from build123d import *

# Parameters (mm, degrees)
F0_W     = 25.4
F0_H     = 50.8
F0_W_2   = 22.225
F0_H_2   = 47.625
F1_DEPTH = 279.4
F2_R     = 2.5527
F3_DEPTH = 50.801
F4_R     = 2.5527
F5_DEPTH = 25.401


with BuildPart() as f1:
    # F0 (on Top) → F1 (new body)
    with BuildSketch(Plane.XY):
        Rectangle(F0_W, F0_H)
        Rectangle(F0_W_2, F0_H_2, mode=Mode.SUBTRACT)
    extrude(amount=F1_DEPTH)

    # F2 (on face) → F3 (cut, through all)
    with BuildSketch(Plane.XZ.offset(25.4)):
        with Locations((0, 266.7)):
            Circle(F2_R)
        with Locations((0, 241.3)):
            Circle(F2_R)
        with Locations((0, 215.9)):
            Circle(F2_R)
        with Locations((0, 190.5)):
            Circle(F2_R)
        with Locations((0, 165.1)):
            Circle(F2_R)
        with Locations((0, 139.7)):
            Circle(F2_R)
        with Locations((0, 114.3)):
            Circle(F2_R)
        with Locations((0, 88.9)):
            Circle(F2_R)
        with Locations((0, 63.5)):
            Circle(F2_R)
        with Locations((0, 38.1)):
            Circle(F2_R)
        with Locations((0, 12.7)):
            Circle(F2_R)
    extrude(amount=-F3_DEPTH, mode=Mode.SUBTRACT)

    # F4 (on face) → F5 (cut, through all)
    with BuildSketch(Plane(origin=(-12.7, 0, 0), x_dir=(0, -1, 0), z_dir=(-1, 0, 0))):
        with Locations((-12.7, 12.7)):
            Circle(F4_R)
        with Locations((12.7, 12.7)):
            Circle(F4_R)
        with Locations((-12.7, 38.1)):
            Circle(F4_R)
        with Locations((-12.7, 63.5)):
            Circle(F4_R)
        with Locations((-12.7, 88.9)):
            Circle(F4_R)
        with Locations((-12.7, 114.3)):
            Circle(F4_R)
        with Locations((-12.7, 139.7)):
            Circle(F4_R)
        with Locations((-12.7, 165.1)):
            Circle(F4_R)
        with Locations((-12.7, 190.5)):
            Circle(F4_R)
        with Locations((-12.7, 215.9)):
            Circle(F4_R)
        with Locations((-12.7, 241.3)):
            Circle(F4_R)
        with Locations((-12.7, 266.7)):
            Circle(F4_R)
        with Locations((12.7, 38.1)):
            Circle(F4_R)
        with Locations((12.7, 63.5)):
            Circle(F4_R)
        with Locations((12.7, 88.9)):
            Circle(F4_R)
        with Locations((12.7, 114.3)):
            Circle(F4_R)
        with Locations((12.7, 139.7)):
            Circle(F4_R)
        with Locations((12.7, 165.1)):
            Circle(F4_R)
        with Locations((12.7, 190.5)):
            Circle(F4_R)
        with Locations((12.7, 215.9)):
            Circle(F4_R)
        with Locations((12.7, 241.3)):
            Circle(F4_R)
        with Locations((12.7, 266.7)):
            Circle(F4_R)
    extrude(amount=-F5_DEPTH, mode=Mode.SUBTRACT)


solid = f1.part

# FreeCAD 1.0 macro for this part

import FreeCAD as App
import Part
import Sketcher
from FreeCAD import Vector
Q = App.Units.Quantity

doc = App.newDocument("Part")
body = doc.addObject("PartDesign::Body", "Body")

sketch1 = doc.addObject("Sketcher::SketchObject", "Sketch")
body.addObject(sketch1)
sketch1.AttachmentSupport = (doc.XY_Plane, [""])
sketch1.MapMode = "FlatFace"
sketch1.addGeometry([
    Part.LineSegment(Vector(-13, 25, 0), Vector(-13, -25, 0)),
    Part.LineSegment(Vector(-13, -25, 0), Vector(13, -25, 0)),
    Part.LineSegment(Vector(13, -25, 0), Vector(13, 25, 0)),
    Part.LineSegment(Vector(13, 25, 0), Vector(-13, 25, 0)),
    Part.LineSegment(Vector(11, -24, 0), Vector(-11, -24, 0)),
    Part.LineSegment(Vector(-11, -24, 0), Vector(-11, 24, 0)),
    Part.LineSegment(Vector(-11, 24, 0), Vector(11, 24, 0)),
    Part.LineSegment(Vector(11, 24, 0), Vector(11, -24, 0)),
], False)
sketch1.addConstraint([
    Sketcher.Constraint("Coincident", 0, 2, 1, 1),
    Sketcher.Constraint("Coincident", 1, 2, 2, 1),
    Sketcher.Constraint("Coincident", 2, 2, 3, 1),
    Sketcher.Constraint("Coincident", 3, 2, 0, 1),
    Sketcher.Constraint("Coincident", 4, 2, 5, 1),
    Sketcher.Constraint("Coincident", 5, 2, 6, 1),
    Sketcher.Constraint("Coincident", 6, 2, 7, 1),
    Sketcher.Constraint("Coincident", 7, 2, 4, 1),
    Sketcher.Constraint("Vertical", 0),
    Sketcher.Constraint("Horizontal", 1),
    Sketcher.Constraint("Vertical", 2),
    Sketcher.Constraint("Horizontal", 3),
    Sketcher.Constraint("Horizontal", 4),
    Sketcher.Constraint("Vertical", 5),
    Sketcher.Constraint("Horizontal", 6),
    Sketcher.Constraint("Vertical", 7),
    Sketcher.Constraint("Symmetric", 0, 2, 2, 2, -1, 1),
    Sketcher.Constraint("Symmetric", 4, 2, 6, 2, -1, 1),
    Sketcher.Constraint("DistanceX", 1, 1, 1, 2, Q("1 in")),
    Sketcher.Constraint("DistanceY", 0, 2, 0, 1, Q("2 in")),
    Sketcher.Constraint("DistanceX", 4, 2, 4, 1, Q("0.875 in")),
    Sketcher.Constraint("DistanceY", 5, 1, 5, 2, Q("1.875 in")),
])
pad1 = doc.addObject("PartDesign::Pad", "Pad")
body.addObject(pad1)
pad1.Profile = sketch1
pad1.Length = Q("11 in")

sketch2 = doc.addObject("Sketcher::SketchObject", "Sketch001")
body.addObject(sketch2)
sketch2.AttachmentSupport = (doc.XZ_Plane, [""])
sketch2.MapMode = "FlatFace"
sketch2.AttachmentOffset = App.Placement(Vector(0, 0, 1 * 25.4), App.Rotation())
sketch2.addGeometry([
    Part.Circle(Vector(0, 266.7, 0), Vector(0, 0, 1), 2.6),
    Part.Circle(Vector(0, 241.3, 0), Vector(0, 0, 1), 2.6),
    Part.Circle(Vector(0, 215.9, 0), Vector(0, 0, 1), 2.6),
    Part.Circle(Vector(0, 190.5, 0), Vector(0, 0, 1), 2.6),
    Part.Circle(Vector(0, 165.1, 0), Vector(0, 0, 1), 2.6),
    Part.Circle(Vector(0, 139.7, 0), Vector(0, 0, 1), 2.6),
    Part.Circle(Vector(0, 114.3, 0), Vector(0, 0, 1), 2.6),
    Part.Circle(Vector(0, 88.9, 0), Vector(0, 0, 1), 2.6),
    Part.Circle(Vector(0, 63.5, 0), Vector(0, 0, 1), 2.6),
    Part.Circle(Vector(0, 38.1, 0), Vector(0, 0, 1), 2.6),
    Part.Circle(Vector(0, 12.7, 0), Vector(0, 0, 1), 2.6),
], False)
sketch2.addConstraint([
    Sketcher.Constraint("Equal", 0, 1),
    Sketcher.Constraint("Equal", 1, 2),
    Sketcher.Constraint("Equal", 2, 3),
    Sketcher.Constraint("Equal", 3, 4),
    Sketcher.Constraint("Equal", 4, 5),
    Sketcher.Constraint("Equal", 5, 6),
    Sketcher.Constraint("Equal", 6, 7),
    Sketcher.Constraint("Equal", 7, 8),
    Sketcher.Constraint("Equal", 8, 9),
    Sketcher.Constraint("Equal", 9, 10),
    Sketcher.Constraint("PointOnObject", 0, 3, -2),
    Sketcher.Constraint("PointOnObject", 1, 3, -2),
    Sketcher.Constraint("PointOnObject", 2, 3, -2),
    Sketcher.Constraint("PointOnObject", 3, 3, -2),
    Sketcher.Constraint("PointOnObject", 4, 3, -2),
    Sketcher.Constraint("PointOnObject", 5, 3, -2),
    Sketcher.Constraint("PointOnObject", 6, 3, -2),
    Sketcher.Constraint("PointOnObject", 7, 3, -2),
    Sketcher.Constraint("PointOnObject", 8, 3, -2),
    Sketcher.Constraint("PointOnObject", 9, 3, -2),
    Sketcher.Constraint("PointOnObject", 10, 3, -2),
    Sketcher.Constraint("Diameter", 0, Q("0.201 in")),
    Sketcher.Constraint("DistanceY", 1, 3, 0, 3, Q("1 in")),
    Sketcher.Constraint("DistanceY", 2, 3, 1, 3, Q("1 in")),
    Sketcher.Constraint("DistanceY", 3, 3, 2, 3, Q("1 in")),
    Sketcher.Constraint("DistanceY", 4, 3, 3, 3, Q("1 in")),
    Sketcher.Constraint("DistanceY", 5, 3, 4, 3, Q("1 in")),
    Sketcher.Constraint("DistanceY", 6, 3, 5, 3, Q("1 in")),
    Sketcher.Constraint("DistanceY", 7, 3, 6, 3, Q("1 in")),
    Sketcher.Constraint("DistanceY", 8, 3, 7, 3, Q("1 in")),
    Sketcher.Constraint("DistanceY", 9, 3, 8, 3, Q("1 in")),
    Sketcher.Constraint("DistanceY", 10, 3, 9, 3, Q("1 in")),
    Sketcher.Constraint("DistanceY", -1, 1, 0, 3, Q("10.5 in")),
])
pocket1 = doc.addObject("PartDesign::Pocket", "Pocket")
body.addObject(pocket1)
pocket1.Profile = sketch2
pocket1.Type = "ThroughAll"

sketch3 = doc.addObject("Sketcher::SketchObject", "Sketch002")
body.addObject(sketch3)
sketch3.AttachmentSupport = (doc.YZ_Plane, [""])
sketch3.MapMode = "FlatFace"
sketch3.AttachmentOffset = App.Placement(Vector(0, 0, -0.5 * 25.4), App.Rotation())
sketch3.addGeometry([
    Part.Circle(Vector(12.7, 12.7, 0), Vector(0, 0, 1), 2.6),
    Part.Circle(Vector(-12.7, 12.7, 0), Vector(0, 0, 1), 2.6),
    Part.Circle(Vector(12.7, 38.1, 0), Vector(0, 0, 1), 2.6),
    Part.Circle(Vector(12.7, 63.5, 0), Vector(0, 0, 1), 2.6),
    Part.Circle(Vector(12.7, 88.9, 0), Vector(0, 0, 1), 2.6),
    Part.Circle(Vector(12.7, 114.3, 0), Vector(0, 0, 1), 2.6),
    Part.Circle(Vector(12.7, 139.7, 0), Vector(0, 0, 1), 2.6),
    Part.Circle(Vector(12.7, 165.1, 0), Vector(0, 0, 1), 2.6),
    Part.Circle(Vector(12.7, 190.5, 0), Vector(0, 0, 1), 2.6),
    Part.Circle(Vector(12.7, 215.9, 0), Vector(0, 0, 1), 2.6),
    Part.Circle(Vector(12.7, 241.3, 0), Vector(0, 0, 1), 2.6),
    Part.Circle(Vector(12.7, 266.7, 0), Vector(0, 0, 1), 2.6),
    Part.Circle(Vector(-12.7, 38.1, 0), Vector(0, 0, 1), 2.6),
    Part.Circle(Vector(-12.7, 63.5, 0), Vector(0, 0, 1), 2.6),
    Part.Circle(Vector(-12.7, 88.9, 0), Vector(0, 0, 1), 2.6),
    Part.Circle(Vector(-12.7, 114.3, 0), Vector(0, 0, 1), 2.6),
    Part.Circle(Vector(-12.7, 139.7, 0), Vector(0, 0, 1), 2.6),
    Part.Circle(Vector(-12.7, 165.1, 0), Vector(0, 0, 1), 2.6),
    Part.Circle(Vector(-12.7, 190.5, 0), Vector(0, 0, 1), 2.6),
    Part.Circle(Vector(-12.7, 215.9, 0), Vector(0, 0, 1), 2.6),
    Part.Circle(Vector(-12.7, 241.3, 0), Vector(0, 0, 1), 2.6),
    Part.Circle(Vector(-12.7, 266.7, 0), Vector(0, 0, 1), 2.6),
], False)
sketch3.addConstraint([
    Sketcher.Constraint("Equal", 0, 1),
    Sketcher.Constraint("Equal", 1, 2),
    Sketcher.Constraint("Equal", 2, 3),
    Sketcher.Constraint("Equal", 3, 4),
    Sketcher.Constraint("Equal", 4, 5),
    Sketcher.Constraint("Equal", 5, 6),
    Sketcher.Constraint("Equal", 6, 7),
    Sketcher.Constraint("Equal", 7, 8),
    Sketcher.Constraint("Equal", 8, 9),
    Sketcher.Constraint("Equal", 9, 10),
    Sketcher.Constraint("Equal", 10, 11),
    Sketcher.Constraint("Equal", 11, 12),
    Sketcher.Constraint("Equal", 12, 13),
    Sketcher.Constraint("Equal", 13, 14),
    Sketcher.Constraint("Equal", 14, 15),
    Sketcher.Constraint("Equal", 15, 16),
    Sketcher.Constraint("Equal", 16, 17),
    Sketcher.Constraint("Equal", 17, 18),
    Sketcher.Constraint("Equal", 18, 19),
    Sketcher.Constraint("Equal", 19, 20),
    Sketcher.Constraint("Equal", 20, 21),
    Sketcher.Constraint("Symmetric", 0, 3, 1, 3, -2),
    Sketcher.Constraint("Symmetric", 2, 3, 12, 3, -2),
    Sketcher.Constraint("Symmetric", 3, 3, 13, 3, -2),
    Sketcher.Constraint("Symmetric", 4, 3, 14, 3, -2),
    Sketcher.Constraint("Symmetric", 5, 3, 15, 3, -2),
    Sketcher.Constraint("Symmetric", 6, 3, 16, 3, -2),
    Sketcher.Constraint("Symmetric", 7, 3, 17, 3, -2),
    Sketcher.Constraint("Symmetric", 8, 3, 18, 3, -2),
    Sketcher.Constraint("Symmetric", 9, 3, 19, 3, -2),
    Sketcher.Constraint("Symmetric", 10, 3, 20, 3, -2),
    Sketcher.Constraint("Symmetric", 11, 3, 21, 3, -2),
    Sketcher.Constraint("Vertical", 0, 3, 2, 3),
    Sketcher.Constraint("Vertical", 2, 3, 3, 3),
    Sketcher.Constraint("Vertical", 3, 3, 4, 3),
    Sketcher.Constraint("Vertical", 4, 3, 5, 3),
    Sketcher.Constraint("Vertical", 5, 3, 6, 3),
    Sketcher.Constraint("Vertical", 6, 3, 7, 3),
    Sketcher.Constraint("Vertical", 7, 3, 8, 3),
    Sketcher.Constraint("Vertical", 8, 3, 9, 3),
    Sketcher.Constraint("Vertical", 9, 3, 10, 3),
    Sketcher.Constraint("Vertical", 10, 3, 11, 3),
    Sketcher.Constraint("Diameter", 0, Q("0.201 in")),
    Sketcher.Constraint("DistanceX", 1, 3, 0, 3, Q("1 in")),
    Sketcher.Constraint("DistanceY", 0, 3, 2, 3, Q("1 in")),
    Sketcher.Constraint("DistanceY", 2, 3, 3, 3, Q("1 in")),
    Sketcher.Constraint("DistanceY", 3, 3, 4, 3, Q("1 in")),
    Sketcher.Constraint("DistanceY", 4, 3, 5, 3, Q("1 in")),
    Sketcher.Constraint("DistanceY", 5, 3, 6, 3, Q("1 in")),
    Sketcher.Constraint("DistanceY", 6, 3, 7, 3, Q("1 in")),
    Sketcher.Constraint("DistanceY", 7, 3, 8, 3, Q("1 in")),
    Sketcher.Constraint("DistanceY", 8, 3, 9, 3, Q("1 in")),
    Sketcher.Constraint("DistanceY", 9, 3, 10, 3, Q("1 in")),
    Sketcher.Constraint("DistanceY", 10, 3, 11, 3, Q("1 in")),
    Sketcher.Constraint("DistanceY", -1, 1, 0, 3, Q("0.5 in")),
])
pocket2 = doc.addObject("PartDesign::Pocket", "Pocket001")
body.addObject(pocket2)
pocket2.Profile = sketch3
pocket2.Type = "ThroughAll"
pocket2.Reversed = True

doc.recompute()
